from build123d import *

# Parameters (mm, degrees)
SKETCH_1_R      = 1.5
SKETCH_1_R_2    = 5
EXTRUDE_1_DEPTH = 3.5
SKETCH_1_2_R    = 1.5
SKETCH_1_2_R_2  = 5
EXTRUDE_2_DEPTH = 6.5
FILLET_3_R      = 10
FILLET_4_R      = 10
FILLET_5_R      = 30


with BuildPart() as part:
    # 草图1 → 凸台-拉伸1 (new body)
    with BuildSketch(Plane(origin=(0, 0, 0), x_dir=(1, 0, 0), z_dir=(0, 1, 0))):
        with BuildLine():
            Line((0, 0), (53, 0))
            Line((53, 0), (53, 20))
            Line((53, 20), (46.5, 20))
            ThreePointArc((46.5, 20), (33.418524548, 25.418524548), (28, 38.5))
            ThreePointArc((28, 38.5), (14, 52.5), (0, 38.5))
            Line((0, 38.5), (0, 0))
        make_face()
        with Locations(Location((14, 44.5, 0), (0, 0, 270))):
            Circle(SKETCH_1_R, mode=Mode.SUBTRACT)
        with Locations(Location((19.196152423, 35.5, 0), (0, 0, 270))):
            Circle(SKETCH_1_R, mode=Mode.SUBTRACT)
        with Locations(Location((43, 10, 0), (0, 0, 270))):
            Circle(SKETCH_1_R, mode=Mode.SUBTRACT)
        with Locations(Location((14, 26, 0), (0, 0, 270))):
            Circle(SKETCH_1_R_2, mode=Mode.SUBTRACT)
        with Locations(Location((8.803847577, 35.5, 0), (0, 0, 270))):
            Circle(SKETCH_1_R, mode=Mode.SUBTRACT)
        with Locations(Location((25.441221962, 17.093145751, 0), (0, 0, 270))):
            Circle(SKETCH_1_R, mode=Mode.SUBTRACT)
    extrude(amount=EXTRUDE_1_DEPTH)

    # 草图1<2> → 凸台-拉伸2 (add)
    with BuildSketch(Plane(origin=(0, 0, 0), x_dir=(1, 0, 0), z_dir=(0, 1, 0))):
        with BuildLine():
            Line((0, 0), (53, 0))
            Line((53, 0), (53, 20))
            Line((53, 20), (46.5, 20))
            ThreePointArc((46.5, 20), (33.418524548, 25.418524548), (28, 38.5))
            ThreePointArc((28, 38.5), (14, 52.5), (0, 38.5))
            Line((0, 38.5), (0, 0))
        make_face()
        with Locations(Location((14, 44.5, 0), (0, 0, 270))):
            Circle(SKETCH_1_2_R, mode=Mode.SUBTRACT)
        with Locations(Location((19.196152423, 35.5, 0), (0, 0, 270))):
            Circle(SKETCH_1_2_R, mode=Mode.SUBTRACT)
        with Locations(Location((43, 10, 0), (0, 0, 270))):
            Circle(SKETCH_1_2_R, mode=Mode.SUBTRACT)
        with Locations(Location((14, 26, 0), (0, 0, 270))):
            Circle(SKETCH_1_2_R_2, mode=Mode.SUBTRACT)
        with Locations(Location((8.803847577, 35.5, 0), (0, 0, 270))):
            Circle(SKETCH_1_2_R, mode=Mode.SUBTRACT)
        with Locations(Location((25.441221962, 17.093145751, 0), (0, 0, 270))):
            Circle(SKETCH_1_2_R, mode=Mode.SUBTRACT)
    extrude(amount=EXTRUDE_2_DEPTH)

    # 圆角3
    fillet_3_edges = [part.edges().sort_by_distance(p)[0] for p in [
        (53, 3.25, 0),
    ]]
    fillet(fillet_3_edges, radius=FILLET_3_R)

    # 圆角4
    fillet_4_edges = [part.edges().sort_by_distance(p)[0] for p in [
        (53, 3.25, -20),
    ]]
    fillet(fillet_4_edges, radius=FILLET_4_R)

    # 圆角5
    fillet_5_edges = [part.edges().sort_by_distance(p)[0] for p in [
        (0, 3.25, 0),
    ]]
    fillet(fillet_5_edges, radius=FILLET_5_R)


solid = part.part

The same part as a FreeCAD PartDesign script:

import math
import FreeCAD as App
import Part
import Sketcher

V = App.Vector


def edges_at(feature, points):
    """Names of the edges that pass closest to the given points."""
    edges = feature.Shape.Edges
    near = lambda p: min(range(len(edges)), key=lambda i: edges[i].distToShape(Part.Vertex(*p))[0])
    return sorted({f"Edge{near(p) + 1}" for p in points})

doc = App.newDocument("Part")
body = doc.addObject("PartDesign::Body", "Body")

# Sketch on XZ plane
sketch1 = body.newObject("Sketcher::SketchObject", "Sketch")
sketch1.AttachmentSupport = (doc.getObject("XZ_Plane"), [""])
sketch1.MapMode = "FlatFace"
sketch1.addGeometry([
    Part.LineSegment(V(0, 0, 0), V(53, 0, 0)),  # 0
    Part.LineSegment(V(53, 0, 0), V(53, -20, 0)),  # 1
    Part.LineSegment(V(53, -20, 0), V(46.5, -20, 0)),  # 2
    Part.ArcOfCircle(Part.Circle(V(46.5, -38.5, 0), V(0, 0, 1), 18.5), math.radians(90), math.radians(180)),  # 3
    Part.ArcOfCircle(Part.Circle(V(14, -38.5, 0), V(0, 0, 1), 14), math.radians(180), math.radians(360)),  # 4
    Part.LineSegment(V(0, -38.5, 0), V(0, 0, 0)),  # 5
    Part.Circle(V(25.4, -17.1, 0), V(0, 0, 1), 1.5),  # 6
    Part.Circle(V(14, -26, 0), V(0, 0, 1), 5),  # 7
    Part.Circle(V(43, -10, 0), V(0, 0, 1), 1.5),  # 8
    Part.Circle(V(8.8, -35.5, 0), V(0, 0, 1), 1.5),  # 9
    Part.Circle(V(19.2, -35.5, 0), V(0, 0, 1), 1.5),  # 10
    Part.Circle(V(14, -44.5, 0), V(0, 0, 1), 1.5),  # 11
], False)
sketch1.addConstraint([
    Sketcher.Constraint("Coincident", 0, 2, 1, 1),
    Sketcher.Constraint("Coincident", 1, 2, 2, 1),
    Sketcher.Constraint("Tangent", 2, 2, 3, 1),
    Sketcher.Constraint("Tangent", 3, 2, 4, 2),
    Sketcher.Constraint("Tangent", 4, 1, 5, 1),
    Sketcher.Constraint("Coincident", 5, 2, 0, 1),
    Sketcher.Constraint("Horizontal", 0),
    Sketcher.Constraint("Vertical", 1),
    Sketcher.Constraint("Horizontal", 2),
    Sketcher.Constraint("Vertical", 5),
    Sketcher.Constraint("Coincident", 5, 2, -1, 1),
    Sketcher.Constraint("Equal", 6, 8),
    Sketcher.Constraint("Equal", 8, 9),
    Sketcher.Constraint("Equal", 9, 10),
    Sketcher.Constraint("Equal", 10, 11),
    Sketcher.Constraint("Horizontal", 3, 3, 4, 3),
    Sketcher.Constraint("Horizontal", 9, 3, 10, 3),
    Sketcher.Constraint("Vertical", 4, 3, 7, 3),
    Sketcher.Constraint("Vertical", 7, 3, 11, 3),
    Sketcher.Constraint("Diameter", 6, 3.0),
    Sketcher.Constraint("Diameter", 7, 10.0),
    Sketcher.Constraint("Radius", 4, 14.0),
    Sketcher.Constraint("Radius", 3, 18.5),
    Sketcher.Constraint("DistanceX", 0, 1, 0, 2, 53.0),
    Sketcher.Constraint("DistanceY", 1, 2, 1, 1, 20.0),
    Sketcher.Constraint("DistanceY", 7, 3, -1, 1, 26.0),
    Sketcher.Constraint("DistanceX", -1, 1, 8, 3, 43.0),
    Sketcher.Constraint("DistanceY", 8, 3, -1, 1, 10.0),
    Sketcher.Constraint("DistanceY", 4, 3, 9, 3, 3.0),
    Sketcher.Constraint("DistanceY", 11, 3, 4, 3, 6.0),
    Sketcher.Constraint("DistanceX", -1, 1, 6, 3, 25.441222),
    Sketcher.Constraint("DistanceX", 10, 3, 6, 3, 6.24507),
    Sketcher.Constraint("DistanceY", 6, 3, -1, 1, 17.093146),
    Sketcher.Constraint("DistanceX", -1, 1, 9, 3, 8.803848),
])
pad1 = body.newObject("PartDesign::Pad", "Pad")
pad1.Profile = sketch1
pad1.Length = 3.5
pad1.Reversed = True

# Sketch on XZ plane
sketch2 = body.newObject("Sketcher::SketchObject", "Sketch001")
sketch2.AttachmentSupport = (doc.getObject("XZ_Plane"), [""])
sketch2.MapMode = "FlatFace"
sketch2.addGeometry([
    Part.LineSegment(V(0, 0, 0), V(53, 0, 0)),  # 0
    Part.LineSegment(V(53, 0, 0), V(53, -20, 0)),  # 1
    Part.LineSegment(V(53, -20, 0), V(46.5, -20, 0)),  # 2
    Part.ArcOfCircle(Part.Circle(V(46.5, -38.5, 0), V(0, 0, 1), 18.5), math.radians(90), math.radians(180)),  # 3
    Part.ArcOfCircle(Part.Circle(V(14, -38.5, 0), V(0, 0, 1), 14), math.radians(180), math.radians(360)),  # 4
    Part.LineSegment(V(0, -38.5, 0), V(0, 0, 0)),  # 5
    Part.Circle(V(25.4, -17.1, 0), V(0, 0, 1), 1.5),  # 6
    Part.Circle(V(14, -26, 0), V(0, 0, 1), 5),  # 7
    Part.Circle(V(43, -10, 0), V(0, 0, 1), 1.5),  # 8
    Part.Circle(V(8.8, -35.5, 0), V(0, 0, 1), 1.5),  # 9
    Part.Circle(V(19.2, -35.5, 0), V(0, 0, 1), 1.5),  # 10
    Part.Circle(V(14, -44.5, 0), V(0, 0, 1), 1.5),  # 11
], False)
sketch2.addConstraint([
    Sketcher.Constraint("Coincident", 0, 2, 1, 1),
    Sketcher.Constraint("Coincident", 1, 2, 2, 1),
    Sketcher.Constraint("Tangent", 2, 2, 3, 1),
    Sketcher.Constraint("Tangent", 3, 2, 4, 2),
    Sketcher.Constraint("Tangent", 4, 1, 5, 1),
    Sketcher.Constraint("Coincident", 5, 2, 0, 1),
    Sketcher.Constraint("Horizontal", 0),
    Sketcher.Constraint("Vertical", 1),
    Sketcher.Constraint("Horizontal", 2),
    Sketcher.Constraint("Vertical", 5),
    Sketcher.Constraint("Coincident", 5, 2, -1, 1),
    Sketcher.Constraint("Equal", 6, 8),
    Sketcher.Constraint("Equal", 8, 9),
    Sketcher.Constraint("Equal", 9, 10),
    Sketcher.Constraint("Equal", 10, 11),
    Sketcher.Constraint("Horizontal", 3, 3, 4, 3),
    Sketcher.Constraint("Horizontal", 9, 3, 10, 3),
    Sketcher.Constraint("Vertical", 4, 3, 7, 3),
    Sketcher.Constraint("Vertical", 7, 3, 11, 3),
    Sketcher.Constraint("Diameter", 6, 3.0),
    Sketcher.Constraint("Diameter", 7, 10.0),
    Sketcher.Constraint("Radius", 4, 14.0),
    Sketcher.Constraint("Radius", 3, 18.5),
    Sketcher.Constraint("DistanceX", 0, 1, 0, 2, 53.0),
    Sketcher.Constraint("DistanceY", 1, 2, 1, 1, 20.0),
    Sketcher.Constraint("DistanceY", 7, 3, -1, 1, 26.0),
    Sketcher.Constraint("DistanceX", -1, 1, 8, 3, 43.0),
    Sketcher.Constraint("DistanceY", 8, 3, -1, 1, 10.0),
    Sketcher.Constraint("DistanceY", 4, 3, 9, 3, 3.0),
    Sketcher.Constraint("DistanceY", 11, 3, 4, 3, 6.0),
    Sketcher.Constraint("DistanceX", -1, 1, 6, 3, 25.441222),
    Sketcher.Constraint("DistanceX", 10, 3, 6, 3, 6.24507),
    Sketcher.Constraint("DistanceY", 6, 3, -1, 1, 17.093146),
    Sketcher.Constraint("DistanceX", -1, 1, 9, 3, 8.803848),
])
pad2 = body.newObject("PartDesign::Pad", "Pad001")
pad2.Profile = sketch2
pad2.Length = 6.5
pad2.Reversed = True
doc.recompute()

fillet = body.newObject("PartDesign::Fillet", "Fillet")
fillet.Base = (pad2, edges_at(pad2, [(53, 3.25, 0)]))
fillet.Radius = 10
doc.recompute()

fillet2 = body.newObject("PartDesign::Fillet", "Fillet001")
fillet2.Base = (fillet, edges_at(fillet, [(53, 3.25, -20)]))
fillet2.Radius = 10
doc.recompute()

fillet3 = body.newObject("PartDesign::Fillet", "Fillet002")
fillet3.Base = (fillet2, edges_at(fillet2, [(0, 3.25, 0)]))
fillet3.Radius = 30

doc.recompute()
